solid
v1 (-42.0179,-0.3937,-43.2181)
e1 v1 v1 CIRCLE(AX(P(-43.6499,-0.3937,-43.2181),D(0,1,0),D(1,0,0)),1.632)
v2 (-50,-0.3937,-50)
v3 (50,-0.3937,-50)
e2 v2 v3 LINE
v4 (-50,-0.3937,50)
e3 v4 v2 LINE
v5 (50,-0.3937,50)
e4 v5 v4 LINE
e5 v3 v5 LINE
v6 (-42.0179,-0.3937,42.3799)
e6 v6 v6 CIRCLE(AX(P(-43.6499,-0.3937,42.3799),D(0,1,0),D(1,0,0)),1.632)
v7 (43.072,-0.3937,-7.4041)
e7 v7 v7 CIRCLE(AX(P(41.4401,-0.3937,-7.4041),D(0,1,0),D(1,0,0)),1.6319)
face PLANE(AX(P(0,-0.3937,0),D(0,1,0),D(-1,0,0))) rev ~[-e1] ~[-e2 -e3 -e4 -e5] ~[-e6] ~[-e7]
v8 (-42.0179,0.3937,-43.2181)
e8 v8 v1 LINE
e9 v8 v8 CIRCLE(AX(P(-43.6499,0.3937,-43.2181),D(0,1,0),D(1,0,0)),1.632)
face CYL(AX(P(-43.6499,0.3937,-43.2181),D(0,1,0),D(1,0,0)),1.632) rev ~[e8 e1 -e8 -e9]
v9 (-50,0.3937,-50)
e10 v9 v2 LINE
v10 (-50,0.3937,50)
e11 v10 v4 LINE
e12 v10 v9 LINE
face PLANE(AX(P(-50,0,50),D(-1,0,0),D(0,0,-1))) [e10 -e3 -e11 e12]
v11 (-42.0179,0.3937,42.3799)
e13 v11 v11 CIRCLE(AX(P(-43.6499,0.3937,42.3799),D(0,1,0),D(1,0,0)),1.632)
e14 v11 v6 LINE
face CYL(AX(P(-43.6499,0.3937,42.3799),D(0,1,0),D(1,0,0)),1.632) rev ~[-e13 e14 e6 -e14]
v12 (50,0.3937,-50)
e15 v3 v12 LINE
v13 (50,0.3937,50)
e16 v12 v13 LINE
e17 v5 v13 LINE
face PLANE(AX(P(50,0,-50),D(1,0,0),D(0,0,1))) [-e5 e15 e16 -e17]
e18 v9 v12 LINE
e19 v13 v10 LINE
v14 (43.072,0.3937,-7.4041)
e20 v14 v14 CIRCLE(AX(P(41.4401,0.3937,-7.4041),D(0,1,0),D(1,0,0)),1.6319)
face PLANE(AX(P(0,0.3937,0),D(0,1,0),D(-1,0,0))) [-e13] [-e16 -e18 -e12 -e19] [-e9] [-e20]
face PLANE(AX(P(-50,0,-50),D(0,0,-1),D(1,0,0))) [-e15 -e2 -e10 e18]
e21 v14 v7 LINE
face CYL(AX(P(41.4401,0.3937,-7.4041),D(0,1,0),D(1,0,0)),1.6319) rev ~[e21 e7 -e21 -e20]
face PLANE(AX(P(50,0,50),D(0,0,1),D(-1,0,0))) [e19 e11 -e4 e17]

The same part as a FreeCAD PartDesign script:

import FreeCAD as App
import Part
import Sketcher
Q = App.Units.Quantity

doc = App.newDocument("Part")
body = doc.addObject("PartDesign::Body", "Body")

# Sketch on XZ plane
sketch1 = body.newObject("Sketcher::SketchObject", "Sketch")
sketch1.AttachmentSupport = (doc.getObject("XZ_Plane"), [""])
sketch1.MapMode = "FlatFace"
sketch1.addGeometry([
    Part.LineSegment(App.Vector(-50, 50, 0), App.Vector(50, 50, 0)),
    Part.LineSegment(App.Vector(50, 50, 0), App.Vector(50, -50, 0)),
    Part.LineSegment(App.Vector(50, -50, 0), App.Vector(-50, -50, 0)),
    Part.LineSegment(App.Vector(-50, -50, 0), App.Vector(-50, 50, 0)),
], False)
sketch1.addConstraint([
    Sketcher.Constraint("Coincident", 0, 2, 1, 1),
    Sketcher.Constraint("Coincident", 1, 2, 2, 1),
    Sketcher.Constraint("Coincident", 2, 2, 3, 1),
    Sketcher.Constraint("Coincident", 3, 2, 0, 1),
    Sketcher.Constraint("Horizontal", 0),
    Sketcher.Constraint("Vertical", 1),
    Sketcher.Constraint("Horizontal", 2),
    Sketcher.Constraint("Vertical", 3),
    Sketcher.Constraint("Symmetric", 0, 2, 2, 2, -1, 1),
    Sketcher.Constraint("Equal", 2, 1),
    Sketcher.Constraint("DistanceX", 0, 1, 0, 2, Q("3.937 in")),
])
pad1 = body.newObject("PartDesign::Pad", "Pad")
pad1.Profile = sketch1
pad1.Length = Q("0.031 in")
pad1.Midplane = True

# Sketch on XZ plane
sketch2 = body.newObject("Sketcher::SketchObject", "Sketch001")
sketch2.AttachmentSupport = (doc.getObject("XZ_Plane"), [""])
sketch2.MapMode = "FlatFace"
sketch2.AttachmentOffset = App.Placement(App.Vector(0, 0, -0.0155 * 25.4), App.Rotation())
sketch2.addGeometry([
    Part.Circle(App.Vector(41.4, -7.4, 0), App.Vector(0, 0, 1), 1.6),
    Part.Circle(App.Vector(-43.6, 42.4, 0), App.Vector(0, 0, 1), 1.6),
    Part.Circle(App.Vector(-43.6, -43.2, 0), App.Vector(0, 0, 1), 1.6),
], False)
sketch2.addConstraint([
    Sketcher.Constraint("Equal", 0, 1),
    Sketcher.Constraint("Equal", 1, 2),
    Sketcher.Constraint("Vertical", 1, 3, 2, 3),
    Sketcher.Constraint("Diameter", 0, Q("0.1285 in")),
    Sketcher.Constraint("DistanceX", 1, 3, 0, 3, Q("3.35 in")),
    Sketcher.Constraint("DistanceY", 0, 3, 1, 3, Q("1.96 in")),
    Sketcher.Constraint("DistanceY", 2, 3, 1, 3, Q("3.37 in")),
    Sketcher.Constraint("DistanceX", -1, 1, 0, 3, Q("1.6315 in")),
    Sketcher.Constraint("DistanceY", 0, 3, -1, 1, Q("0.2915 in")),
])
pocket1 = body.newObject("PartDesign::Pocket", "Pocket")
pocket1.Profile = sketch2
pocket1.Type = "ThroughAll"
pocket1.Reversed = True

doc.recompute()
